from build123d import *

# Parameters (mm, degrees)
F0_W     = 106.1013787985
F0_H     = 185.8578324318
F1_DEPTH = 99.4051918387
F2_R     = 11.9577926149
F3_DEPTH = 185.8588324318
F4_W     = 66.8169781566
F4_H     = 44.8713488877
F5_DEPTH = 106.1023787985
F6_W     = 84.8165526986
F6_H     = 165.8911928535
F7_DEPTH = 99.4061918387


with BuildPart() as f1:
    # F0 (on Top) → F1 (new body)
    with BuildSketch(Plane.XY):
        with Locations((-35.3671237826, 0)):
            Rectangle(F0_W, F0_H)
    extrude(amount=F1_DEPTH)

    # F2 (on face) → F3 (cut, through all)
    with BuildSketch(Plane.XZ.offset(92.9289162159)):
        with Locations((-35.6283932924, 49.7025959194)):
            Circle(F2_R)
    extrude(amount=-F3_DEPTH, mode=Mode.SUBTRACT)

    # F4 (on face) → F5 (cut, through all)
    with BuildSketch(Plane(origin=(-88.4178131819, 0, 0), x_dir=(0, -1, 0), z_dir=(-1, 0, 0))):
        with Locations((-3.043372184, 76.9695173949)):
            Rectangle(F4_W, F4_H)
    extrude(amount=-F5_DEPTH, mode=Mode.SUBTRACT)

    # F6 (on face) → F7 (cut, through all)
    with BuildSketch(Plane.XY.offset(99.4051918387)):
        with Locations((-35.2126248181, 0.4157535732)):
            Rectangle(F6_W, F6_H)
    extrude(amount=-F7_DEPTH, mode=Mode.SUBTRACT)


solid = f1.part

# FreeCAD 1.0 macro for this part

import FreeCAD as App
import Part
import Sketcher

V = App.Vector


def add_polygon(sketch, points):
    """Adds a closed chain of lines whose ends are joined by coincident constraints."""
    first, n = sketch.GeometryCount, len(points)
    for a, b in zip(points, points[1:] + points[:1]):
        sketch.addGeometry(Part.LineSegment(App.Vector(*a, 0), App.Vector(*b, 0)), False)
    for i in range(n):
        sketch.addConstraint(Sketcher.Constraint("Coincident", first + i, 2, first + (i + 1) % n, 1))

doc = App.newDocument("Part")
body = doc.addObject("PartDesign::Body", "Body")

sketch1 = body.newObject("Sketcher::SketchObject", "Sketch")
sketch1.AttachmentSupport = (doc.getObject("XY_Plane"), [""])
sketch1.MapMode = "FlatFace"
add_polygon(sketch1, [(-88, 93), (-88, -93), (18, -93), (18, 93)])
sketch1.addConstraint([
    Sketcher.Constraint("Vertical", 0),
    Sketcher.Constraint("Horizontal", 1),
    Sketcher.Constraint("Vertical", 2),
    Sketcher.Constraint("Horizontal", 3),
    Sketcher.Constraint("DistanceX", 1, 1, 1, 2, 106.101379),
    Sketcher.Constraint("DistanceY", 0, 2, 0, 1, 185.857832),
    Sketcher.Constraint("DistanceX", 0, 2, -1, 1, 88.417813),
    Sketcher.Constraint("DistanceY", 0, 2, -1, 1, 92.928916),
])
pad1 = body.newObject("PartDesign::Pad", "Pad")
pad1.Profile = sketch1
pad1.Length = 99.405192

sketch2 = body.newObject("Sketcher::SketchObject", "Sketch001")
sketch2.AttachmentSupport = (doc.getObject("XZ_Plane"), [""])
sketch2.MapMode = "FlatFace"
sketch2.AttachmentOffset = App.Placement(V(0, 0, 92.928916), App.Rotation())
sketch2.addGeometry(Part.Circle(V(-36, 50, 0), V(0, 0, 1), 12), False)
sketch2.addConstraint([
    Sketcher.Constraint("Diameter", 0, 23.915585),
    Sketcher.Constraint("DistanceX", 0, 3, -1, 1, 35.628393),
    Sketcher.Constraint("DistanceY", -1, 1, 0, 3, 49.702596),
])
pocket1 = body.newObject("PartDesign::Pocket", "Pocket")
pocket1.Profile = sketch2
pocket1.Type = "ThroughAll"

sketch3 = body.newObject("Sketcher::SketchObject", "Sketch002")
sketch3.AttachmentSupport = (doc.getObject("YZ_Plane"), [""])
sketch3.MapMode = "FlatFace"
sketch3.AttachmentOffset = App.Placement(V(0, 0, -88.417813), App.Rotation())
add_polygon(sketch3, [(36, 99), (36, 55), (-30, 55), (-30, 99)])
sketch3.addConstraint([
    Sketcher.Constraint("Vertical", 0),
    Sketcher.Constraint("Horizontal", 1),
    Sketcher.Constraint("Vertical", 2),
    Sketcher.Constraint("Horizontal", 3),
    Sketcher.Constraint("DistanceX", 1, 2, 1, 1, 66.816978),
    Sketcher.Constraint("DistanceY", 0, 2, 0, 1, 44.871349),
    Sketcher.Constraint("DistanceX", -1, 1, 0, 2, 36.451861),
    Sketcher.Constraint("DistanceY", -1, 1, 2, 2, 99.405192),
])
pocket2 = body.newObject("PartDesign::Pocket", "Pocket001")
pocket2.Profile = sketch3
pocket2.Type = "ThroughAll"
pocket2.Reversed = True

sketch4 = body.newObject("Sketcher::SketchObject", "Sketch003")
sketch4.AttachmentSupport = (doc.getObject("XY_Plane"), [""])
sketch4.MapMode = "FlatFace"
sketch4.AttachmentOffset = App.Placement(V(0, 0, 99.405192), App.Rotation())
add_polygon(sketch4, [(-78, 83), (-78, -83), (7, -83), (7, 83)])
sketch4.addConstraint([
    Sketcher.Constraint("Vertical", 0),
    Sketcher.Constraint("Horizontal", 1),
    Sketcher.Constraint("Vertical", 2),
    Sketcher.Constraint("Horizontal", 3),
    Sketcher.Constraint("DistanceX", 0, 2, -1, 1, 77.620901),
    Sketcher.Constraint("DistanceX", 1, 1, 1, 2, 84.816553),
    Sketcher.Constraint("DistanceY", 0, 2, 0, 1, 165.891193),
    Sketcher.Constraint("DistanceY", -1, 1, 2, 2, 83.36135),
])
pocket3 = body.newObject("PartDesign::Pocket", "Pocket002")
pocket3.Profile = sketch4
pocket3.Type = "ThroughAll"

doc.recompute()
